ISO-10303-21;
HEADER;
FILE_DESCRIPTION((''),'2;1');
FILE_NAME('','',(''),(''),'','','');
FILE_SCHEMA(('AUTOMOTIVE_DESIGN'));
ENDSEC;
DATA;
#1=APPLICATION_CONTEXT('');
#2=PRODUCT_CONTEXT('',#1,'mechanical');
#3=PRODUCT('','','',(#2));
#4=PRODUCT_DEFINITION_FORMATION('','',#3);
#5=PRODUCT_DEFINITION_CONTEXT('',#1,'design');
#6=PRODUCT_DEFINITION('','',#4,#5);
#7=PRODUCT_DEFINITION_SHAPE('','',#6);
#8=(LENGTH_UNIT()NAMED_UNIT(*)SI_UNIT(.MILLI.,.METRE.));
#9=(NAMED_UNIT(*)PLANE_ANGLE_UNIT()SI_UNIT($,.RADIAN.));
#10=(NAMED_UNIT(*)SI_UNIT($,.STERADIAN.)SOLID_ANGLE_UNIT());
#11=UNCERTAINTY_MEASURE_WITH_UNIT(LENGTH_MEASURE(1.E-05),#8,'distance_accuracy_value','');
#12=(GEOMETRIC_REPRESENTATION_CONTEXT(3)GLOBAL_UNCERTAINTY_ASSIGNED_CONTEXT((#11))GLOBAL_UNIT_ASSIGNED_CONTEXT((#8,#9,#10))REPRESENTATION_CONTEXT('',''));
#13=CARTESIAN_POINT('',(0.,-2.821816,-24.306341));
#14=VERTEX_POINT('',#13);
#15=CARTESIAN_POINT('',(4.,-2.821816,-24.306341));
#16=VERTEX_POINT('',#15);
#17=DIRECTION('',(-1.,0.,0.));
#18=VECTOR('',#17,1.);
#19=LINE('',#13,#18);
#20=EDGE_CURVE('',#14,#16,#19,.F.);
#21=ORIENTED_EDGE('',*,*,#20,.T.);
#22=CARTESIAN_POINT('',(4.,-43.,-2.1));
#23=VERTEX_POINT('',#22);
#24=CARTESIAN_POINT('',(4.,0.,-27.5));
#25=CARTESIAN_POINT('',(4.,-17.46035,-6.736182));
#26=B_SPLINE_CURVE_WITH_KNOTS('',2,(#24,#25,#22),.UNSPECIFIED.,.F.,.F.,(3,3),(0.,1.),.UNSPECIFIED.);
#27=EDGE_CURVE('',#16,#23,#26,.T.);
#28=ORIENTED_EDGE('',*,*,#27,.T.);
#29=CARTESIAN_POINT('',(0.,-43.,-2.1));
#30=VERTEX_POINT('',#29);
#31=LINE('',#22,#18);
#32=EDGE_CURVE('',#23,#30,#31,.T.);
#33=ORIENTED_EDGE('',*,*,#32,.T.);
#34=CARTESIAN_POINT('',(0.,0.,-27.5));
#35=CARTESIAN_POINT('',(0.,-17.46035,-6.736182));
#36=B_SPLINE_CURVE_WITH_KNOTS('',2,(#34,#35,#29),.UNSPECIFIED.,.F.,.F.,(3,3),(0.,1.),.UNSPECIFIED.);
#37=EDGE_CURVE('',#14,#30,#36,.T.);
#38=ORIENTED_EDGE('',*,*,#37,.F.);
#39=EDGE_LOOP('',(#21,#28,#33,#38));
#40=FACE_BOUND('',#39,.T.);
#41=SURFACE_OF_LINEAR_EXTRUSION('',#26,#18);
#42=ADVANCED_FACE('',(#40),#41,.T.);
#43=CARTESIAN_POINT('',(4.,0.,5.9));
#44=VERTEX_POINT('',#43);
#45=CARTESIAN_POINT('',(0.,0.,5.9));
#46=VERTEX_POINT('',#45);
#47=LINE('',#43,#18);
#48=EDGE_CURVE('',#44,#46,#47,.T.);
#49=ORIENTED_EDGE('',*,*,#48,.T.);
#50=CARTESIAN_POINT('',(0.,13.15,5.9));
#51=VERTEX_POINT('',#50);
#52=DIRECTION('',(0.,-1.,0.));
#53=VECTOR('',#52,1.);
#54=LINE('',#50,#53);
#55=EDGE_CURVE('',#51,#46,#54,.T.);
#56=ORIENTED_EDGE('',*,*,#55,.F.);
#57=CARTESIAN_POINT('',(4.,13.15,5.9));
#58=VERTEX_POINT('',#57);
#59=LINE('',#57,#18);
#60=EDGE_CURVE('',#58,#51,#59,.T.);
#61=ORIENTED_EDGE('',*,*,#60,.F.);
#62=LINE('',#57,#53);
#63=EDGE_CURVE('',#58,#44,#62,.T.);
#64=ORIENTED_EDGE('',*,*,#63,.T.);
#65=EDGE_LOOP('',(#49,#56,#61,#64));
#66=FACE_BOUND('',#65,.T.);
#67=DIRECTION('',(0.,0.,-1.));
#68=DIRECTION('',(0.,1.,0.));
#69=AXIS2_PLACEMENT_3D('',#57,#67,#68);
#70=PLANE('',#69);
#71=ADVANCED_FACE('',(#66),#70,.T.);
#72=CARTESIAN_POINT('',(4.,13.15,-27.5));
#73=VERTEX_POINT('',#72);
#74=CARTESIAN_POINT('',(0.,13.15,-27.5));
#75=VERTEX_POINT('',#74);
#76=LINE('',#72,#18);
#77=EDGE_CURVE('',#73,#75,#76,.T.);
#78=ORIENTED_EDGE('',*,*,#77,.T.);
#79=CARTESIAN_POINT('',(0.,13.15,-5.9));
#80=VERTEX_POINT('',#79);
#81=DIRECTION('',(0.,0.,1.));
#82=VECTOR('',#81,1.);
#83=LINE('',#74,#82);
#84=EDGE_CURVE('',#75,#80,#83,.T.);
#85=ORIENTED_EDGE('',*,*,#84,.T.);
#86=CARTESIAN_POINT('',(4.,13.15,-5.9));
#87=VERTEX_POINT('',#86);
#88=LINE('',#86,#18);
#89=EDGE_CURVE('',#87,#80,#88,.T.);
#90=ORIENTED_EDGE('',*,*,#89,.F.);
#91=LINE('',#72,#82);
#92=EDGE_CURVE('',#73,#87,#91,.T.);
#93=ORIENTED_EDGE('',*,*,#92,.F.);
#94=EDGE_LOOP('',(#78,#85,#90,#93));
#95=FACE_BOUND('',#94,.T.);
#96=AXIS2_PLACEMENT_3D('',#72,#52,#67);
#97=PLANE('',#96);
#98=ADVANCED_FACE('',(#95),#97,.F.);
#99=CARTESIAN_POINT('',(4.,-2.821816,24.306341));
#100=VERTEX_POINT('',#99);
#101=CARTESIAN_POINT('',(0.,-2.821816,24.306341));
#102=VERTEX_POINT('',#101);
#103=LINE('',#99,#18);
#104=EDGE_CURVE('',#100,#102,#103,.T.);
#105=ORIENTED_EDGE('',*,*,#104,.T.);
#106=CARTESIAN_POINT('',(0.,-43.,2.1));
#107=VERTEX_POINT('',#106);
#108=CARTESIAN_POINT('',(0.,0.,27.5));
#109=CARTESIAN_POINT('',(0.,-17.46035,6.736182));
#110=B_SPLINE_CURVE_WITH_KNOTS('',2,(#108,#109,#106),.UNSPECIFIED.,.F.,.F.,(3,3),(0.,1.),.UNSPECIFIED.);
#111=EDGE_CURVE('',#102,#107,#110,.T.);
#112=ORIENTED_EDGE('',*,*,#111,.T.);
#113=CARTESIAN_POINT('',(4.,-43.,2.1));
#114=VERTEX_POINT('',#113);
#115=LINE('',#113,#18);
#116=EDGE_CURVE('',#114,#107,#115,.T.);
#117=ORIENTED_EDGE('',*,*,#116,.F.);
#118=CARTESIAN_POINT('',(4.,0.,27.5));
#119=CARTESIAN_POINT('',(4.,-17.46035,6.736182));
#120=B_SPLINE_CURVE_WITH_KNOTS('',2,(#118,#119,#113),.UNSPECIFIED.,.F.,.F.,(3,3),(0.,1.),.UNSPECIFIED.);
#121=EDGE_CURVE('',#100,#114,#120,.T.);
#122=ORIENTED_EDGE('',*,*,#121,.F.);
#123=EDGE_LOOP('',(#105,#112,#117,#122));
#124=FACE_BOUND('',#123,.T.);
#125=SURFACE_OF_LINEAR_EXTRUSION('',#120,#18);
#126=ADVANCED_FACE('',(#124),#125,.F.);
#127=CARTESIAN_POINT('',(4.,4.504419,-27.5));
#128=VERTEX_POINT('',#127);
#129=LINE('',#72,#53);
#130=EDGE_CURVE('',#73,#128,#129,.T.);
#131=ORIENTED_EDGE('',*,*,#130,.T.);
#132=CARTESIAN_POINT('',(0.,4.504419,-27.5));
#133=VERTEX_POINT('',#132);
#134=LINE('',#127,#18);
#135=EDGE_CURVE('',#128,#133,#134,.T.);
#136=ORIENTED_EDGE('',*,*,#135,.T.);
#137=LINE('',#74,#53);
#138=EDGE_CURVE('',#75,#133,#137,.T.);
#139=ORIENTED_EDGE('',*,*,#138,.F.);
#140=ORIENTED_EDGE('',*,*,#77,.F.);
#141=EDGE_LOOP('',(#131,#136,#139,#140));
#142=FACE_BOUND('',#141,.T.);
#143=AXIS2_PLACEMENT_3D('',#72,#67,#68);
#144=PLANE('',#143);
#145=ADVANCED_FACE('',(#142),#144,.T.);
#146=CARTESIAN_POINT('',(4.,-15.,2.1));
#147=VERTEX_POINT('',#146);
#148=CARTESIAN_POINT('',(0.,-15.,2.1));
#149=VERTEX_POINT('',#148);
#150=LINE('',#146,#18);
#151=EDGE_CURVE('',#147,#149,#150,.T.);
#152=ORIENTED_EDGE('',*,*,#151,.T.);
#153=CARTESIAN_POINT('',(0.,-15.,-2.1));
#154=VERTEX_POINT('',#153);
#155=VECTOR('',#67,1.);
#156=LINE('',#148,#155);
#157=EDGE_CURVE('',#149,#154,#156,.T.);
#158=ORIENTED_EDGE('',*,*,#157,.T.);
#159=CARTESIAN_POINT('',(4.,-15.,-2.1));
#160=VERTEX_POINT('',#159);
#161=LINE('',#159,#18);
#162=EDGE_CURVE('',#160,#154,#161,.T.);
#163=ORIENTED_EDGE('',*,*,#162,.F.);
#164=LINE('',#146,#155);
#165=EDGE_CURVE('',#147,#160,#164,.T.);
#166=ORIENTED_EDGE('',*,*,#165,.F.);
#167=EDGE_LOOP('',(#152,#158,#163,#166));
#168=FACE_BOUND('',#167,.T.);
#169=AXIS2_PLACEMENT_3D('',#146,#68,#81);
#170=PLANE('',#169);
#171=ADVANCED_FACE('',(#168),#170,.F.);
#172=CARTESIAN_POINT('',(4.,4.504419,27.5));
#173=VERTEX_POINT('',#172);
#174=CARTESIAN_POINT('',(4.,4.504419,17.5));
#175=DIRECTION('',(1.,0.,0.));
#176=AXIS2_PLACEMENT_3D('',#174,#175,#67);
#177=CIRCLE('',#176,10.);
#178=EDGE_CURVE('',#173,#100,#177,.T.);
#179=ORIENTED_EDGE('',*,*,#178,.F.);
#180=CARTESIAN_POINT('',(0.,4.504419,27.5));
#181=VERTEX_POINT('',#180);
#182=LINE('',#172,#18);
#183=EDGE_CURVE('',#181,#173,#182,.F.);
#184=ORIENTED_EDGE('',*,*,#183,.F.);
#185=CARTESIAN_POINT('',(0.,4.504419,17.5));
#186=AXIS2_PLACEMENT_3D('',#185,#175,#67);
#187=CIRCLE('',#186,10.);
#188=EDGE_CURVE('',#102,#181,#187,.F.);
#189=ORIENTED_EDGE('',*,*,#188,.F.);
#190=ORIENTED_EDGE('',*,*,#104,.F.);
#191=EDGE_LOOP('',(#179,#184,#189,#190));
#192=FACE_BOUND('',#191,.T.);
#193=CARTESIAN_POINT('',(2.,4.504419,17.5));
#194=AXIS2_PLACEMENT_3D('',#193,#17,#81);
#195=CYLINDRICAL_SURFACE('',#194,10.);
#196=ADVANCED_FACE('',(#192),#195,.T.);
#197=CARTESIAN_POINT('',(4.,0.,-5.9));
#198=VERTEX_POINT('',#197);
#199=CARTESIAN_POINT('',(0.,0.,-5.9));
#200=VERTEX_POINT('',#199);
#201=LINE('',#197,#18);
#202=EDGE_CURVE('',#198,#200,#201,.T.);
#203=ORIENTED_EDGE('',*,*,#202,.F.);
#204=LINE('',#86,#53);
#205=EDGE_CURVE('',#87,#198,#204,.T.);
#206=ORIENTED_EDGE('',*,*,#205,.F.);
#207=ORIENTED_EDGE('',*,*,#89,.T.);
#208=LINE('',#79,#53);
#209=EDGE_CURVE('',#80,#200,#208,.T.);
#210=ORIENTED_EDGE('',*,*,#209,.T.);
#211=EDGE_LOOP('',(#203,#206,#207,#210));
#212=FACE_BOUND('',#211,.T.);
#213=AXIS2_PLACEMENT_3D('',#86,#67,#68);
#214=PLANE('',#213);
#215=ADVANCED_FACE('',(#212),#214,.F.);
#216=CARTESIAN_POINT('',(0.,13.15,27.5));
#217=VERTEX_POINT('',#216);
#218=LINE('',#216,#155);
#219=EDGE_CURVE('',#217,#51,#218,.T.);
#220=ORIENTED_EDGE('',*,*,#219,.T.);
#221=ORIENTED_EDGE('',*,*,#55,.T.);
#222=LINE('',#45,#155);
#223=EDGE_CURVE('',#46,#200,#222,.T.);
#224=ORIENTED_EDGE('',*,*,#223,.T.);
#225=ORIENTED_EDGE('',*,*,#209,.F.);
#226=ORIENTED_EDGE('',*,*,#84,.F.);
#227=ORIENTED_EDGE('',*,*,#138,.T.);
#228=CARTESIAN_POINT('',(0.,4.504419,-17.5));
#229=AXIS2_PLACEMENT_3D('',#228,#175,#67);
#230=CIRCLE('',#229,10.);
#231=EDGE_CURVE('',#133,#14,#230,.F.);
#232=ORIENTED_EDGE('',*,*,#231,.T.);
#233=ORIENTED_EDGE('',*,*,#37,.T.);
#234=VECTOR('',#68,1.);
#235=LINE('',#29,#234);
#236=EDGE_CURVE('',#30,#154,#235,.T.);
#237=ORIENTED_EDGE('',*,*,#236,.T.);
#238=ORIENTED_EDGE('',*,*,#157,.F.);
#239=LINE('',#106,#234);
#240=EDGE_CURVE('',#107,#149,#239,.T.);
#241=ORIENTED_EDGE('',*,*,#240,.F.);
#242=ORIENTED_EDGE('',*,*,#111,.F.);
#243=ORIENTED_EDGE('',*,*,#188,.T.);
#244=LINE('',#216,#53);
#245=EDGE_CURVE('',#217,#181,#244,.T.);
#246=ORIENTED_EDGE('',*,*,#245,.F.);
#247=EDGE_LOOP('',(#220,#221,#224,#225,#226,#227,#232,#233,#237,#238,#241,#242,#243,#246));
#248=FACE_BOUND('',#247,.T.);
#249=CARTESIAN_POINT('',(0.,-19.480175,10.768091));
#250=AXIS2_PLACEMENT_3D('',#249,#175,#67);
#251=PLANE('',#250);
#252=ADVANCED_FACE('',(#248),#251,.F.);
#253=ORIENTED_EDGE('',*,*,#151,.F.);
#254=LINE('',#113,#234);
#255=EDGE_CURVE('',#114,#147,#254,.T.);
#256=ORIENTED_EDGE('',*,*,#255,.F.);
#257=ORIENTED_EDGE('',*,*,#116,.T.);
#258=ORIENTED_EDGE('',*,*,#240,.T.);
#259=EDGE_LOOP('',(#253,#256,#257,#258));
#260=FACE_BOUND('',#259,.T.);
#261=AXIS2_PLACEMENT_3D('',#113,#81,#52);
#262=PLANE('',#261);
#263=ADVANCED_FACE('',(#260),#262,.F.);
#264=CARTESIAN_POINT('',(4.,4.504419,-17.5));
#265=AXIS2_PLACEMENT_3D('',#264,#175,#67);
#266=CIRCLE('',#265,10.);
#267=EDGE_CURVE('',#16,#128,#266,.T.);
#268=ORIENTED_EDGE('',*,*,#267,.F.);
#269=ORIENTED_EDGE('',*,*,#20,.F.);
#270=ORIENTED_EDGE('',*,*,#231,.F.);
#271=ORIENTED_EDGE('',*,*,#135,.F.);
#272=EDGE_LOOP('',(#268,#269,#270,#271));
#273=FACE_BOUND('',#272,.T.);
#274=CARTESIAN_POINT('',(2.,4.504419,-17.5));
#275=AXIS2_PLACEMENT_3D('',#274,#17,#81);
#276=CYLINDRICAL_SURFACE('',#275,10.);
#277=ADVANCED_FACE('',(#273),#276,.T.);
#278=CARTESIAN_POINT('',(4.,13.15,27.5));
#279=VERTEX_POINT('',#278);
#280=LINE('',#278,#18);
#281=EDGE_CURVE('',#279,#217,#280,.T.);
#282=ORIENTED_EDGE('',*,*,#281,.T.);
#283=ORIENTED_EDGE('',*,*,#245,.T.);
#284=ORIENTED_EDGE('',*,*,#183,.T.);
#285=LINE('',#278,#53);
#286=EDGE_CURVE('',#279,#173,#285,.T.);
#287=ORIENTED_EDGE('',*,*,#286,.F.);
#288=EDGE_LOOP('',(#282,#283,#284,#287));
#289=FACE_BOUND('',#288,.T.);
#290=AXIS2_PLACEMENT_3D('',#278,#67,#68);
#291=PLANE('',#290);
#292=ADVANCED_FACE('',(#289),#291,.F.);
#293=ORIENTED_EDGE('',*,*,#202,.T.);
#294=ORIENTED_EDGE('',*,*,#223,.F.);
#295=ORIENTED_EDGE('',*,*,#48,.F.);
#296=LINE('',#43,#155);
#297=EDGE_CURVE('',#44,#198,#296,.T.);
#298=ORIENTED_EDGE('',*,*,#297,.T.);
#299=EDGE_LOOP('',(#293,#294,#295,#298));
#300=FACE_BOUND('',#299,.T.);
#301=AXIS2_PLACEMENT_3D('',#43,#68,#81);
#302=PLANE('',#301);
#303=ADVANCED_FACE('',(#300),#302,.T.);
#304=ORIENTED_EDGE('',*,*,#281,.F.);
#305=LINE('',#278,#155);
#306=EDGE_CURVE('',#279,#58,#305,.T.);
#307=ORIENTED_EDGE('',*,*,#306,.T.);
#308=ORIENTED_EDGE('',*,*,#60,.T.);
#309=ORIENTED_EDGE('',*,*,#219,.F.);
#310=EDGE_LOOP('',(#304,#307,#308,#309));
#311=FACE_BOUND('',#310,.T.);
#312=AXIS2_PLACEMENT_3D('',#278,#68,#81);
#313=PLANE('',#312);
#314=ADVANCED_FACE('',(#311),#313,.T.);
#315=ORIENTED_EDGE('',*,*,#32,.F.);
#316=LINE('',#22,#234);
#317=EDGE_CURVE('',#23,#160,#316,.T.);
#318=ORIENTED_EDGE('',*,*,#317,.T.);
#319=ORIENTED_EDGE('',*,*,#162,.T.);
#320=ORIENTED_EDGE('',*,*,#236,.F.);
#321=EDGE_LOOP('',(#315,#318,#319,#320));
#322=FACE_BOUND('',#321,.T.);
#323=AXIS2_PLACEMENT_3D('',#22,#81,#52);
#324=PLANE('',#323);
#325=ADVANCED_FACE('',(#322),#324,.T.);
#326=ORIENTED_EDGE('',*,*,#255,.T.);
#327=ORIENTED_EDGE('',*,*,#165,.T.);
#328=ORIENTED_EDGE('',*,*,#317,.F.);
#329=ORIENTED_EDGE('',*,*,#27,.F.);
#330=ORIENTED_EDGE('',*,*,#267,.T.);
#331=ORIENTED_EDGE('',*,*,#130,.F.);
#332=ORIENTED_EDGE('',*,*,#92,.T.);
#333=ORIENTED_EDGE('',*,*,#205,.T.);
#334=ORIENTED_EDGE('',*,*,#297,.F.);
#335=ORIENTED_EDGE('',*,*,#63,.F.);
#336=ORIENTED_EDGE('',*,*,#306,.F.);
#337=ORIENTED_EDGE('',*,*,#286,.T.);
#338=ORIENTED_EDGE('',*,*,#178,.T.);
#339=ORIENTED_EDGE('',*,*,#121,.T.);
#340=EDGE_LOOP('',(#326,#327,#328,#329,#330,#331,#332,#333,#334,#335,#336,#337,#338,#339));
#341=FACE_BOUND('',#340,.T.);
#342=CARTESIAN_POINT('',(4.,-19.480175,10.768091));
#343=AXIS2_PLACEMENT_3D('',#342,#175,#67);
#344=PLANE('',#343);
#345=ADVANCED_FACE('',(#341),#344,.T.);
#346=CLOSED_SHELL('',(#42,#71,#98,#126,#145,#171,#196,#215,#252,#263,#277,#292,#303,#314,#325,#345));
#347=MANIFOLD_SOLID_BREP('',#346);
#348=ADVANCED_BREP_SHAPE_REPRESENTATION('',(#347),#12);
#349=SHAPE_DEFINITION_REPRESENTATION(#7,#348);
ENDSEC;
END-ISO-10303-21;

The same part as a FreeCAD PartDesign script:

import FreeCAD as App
import Part
import Sketcher

V = App.Vector


def edges_at(feature, points):
    """Names of the edges that pass closest to the given points."""
    edges = feature.Shape.Edges
    near = lambda p: min(range(len(edges)), key=lambda i: edges[i].distToShape(Part.Vertex(*p))[0])
    return sorted({f"Edge{near(p) + 1}" for p in points})

doc = App.newDocument("Part")
body = doc.addObject("PartDesign::Body", "Body")

# Sketch on YZ plane
sketch1 = doc.addObject("Sketcher::SketchObject", "Sketch")
body.addObject(sketch1)
sketch1.AttachmentSupport = (doc.YZ_Plane, [""])
sketch1.MapMode = "FlatFace"
sketch1.addGeometry([
    Part.LineSegment(V(13.15, 27.5, 0), V(0, 27.5, 0)),  # 0
    Part.BSplineCurve([V(0, 27.5, 0), V(-17.46035, 6.736182, 0), V(-43, 2.1, 0)], [3, 3], [0, 1], False, 2, [1, 1, 1], False),  # 1
    Part.LineSegment(V(-43, 2.1, 0), V(-15, 2.1, 0)),  # 2
    Part.LineSegment(V(-15, 2.1, 0), V(-15, -2.1, 0)),  # 3
    Part.LineSegment(V(-15, -2.1, 0), V(-43, -2.1, 0)),  # 4
    Part.BSplineCurve([V(0, -27.5, 0), V(-17.46035, -6.736182, 0), V(-43, -2.1, 0)], [3, 3], [0, 1], False, 2, [1, 1, 1], False),  # 5
    Part.LineSegment(V(0, -27.5, 0), V(13.15, -27.5, 0)),  # 6
    Part.LineSegment(V(13.15, -27.5, 0), V(13.15, -5.9, 0)),  # 7
    Part.LineSegment(V(13.15, -5.9, 0), V(0, -5.9, 0)),  # 8
    Part.LineSegment(V(0, -5.9, 0), V(0, 5.9, 0)),  # 9
    Part.LineSegment(V(0, 5.9, 0), V(13.15, 5.9, 0)),  # 10
    Part.LineSegment(V(13.15, 5.9, 0), V(13.15, 27.5, 0)),  # 11
], False)
sketch1.addConstraint([
    Sketcher.Constraint("Block", 1),
    Sketcher.Constraint("Block", 5),
    Sketcher.Constraint("Coincident", 0, 2, 1, 1),
    Sketcher.Constraint("Coincident", 1, 2, 2, 1),
    Sketcher.Constraint("Coincident", 2, 2, 3, 1),
    Sketcher.Constraint("Coincident", 3, 2, 4, 1),
    Sketcher.Constraint("Coincident", 4, 2, 5, 2),
    Sketcher.Constraint("Coincident", 5, 1, 6, 1),
    Sketcher.Constraint("Coincident", 6, 2, 7, 1),
    Sketcher.Constraint("Coincident", 7, 2, 8, 1),
    Sketcher.Constraint("Coincident", 8, 2, 9, 1),
    Sketcher.Constraint("Coincident", 9, 2, 10, 1),
    Sketcher.Constraint("Coincident", 10, 2, 11, 1),
    Sketcher.Constraint("Coincident", 11, 2, 0, 1),
    Sketcher.Constraint("Horizontal", 0),
    Sketcher.Constraint("Horizontal", 2),
    Sketcher.Constraint("Vertical", 3),
    Sketcher.Constraint("Horizontal", 4),
    Sketcher.Constraint("Horizontal", 6),
    Sketcher.Constraint("Vertical", 7),
    Sketcher.Constraint("Horizontal", 8),
    Sketcher.Constraint("Vertical", 9),
    Sketcher.Constraint("Horizontal", 10),
    Sketcher.Constraint("Vertical", 11),
    Sketcher.Constraint("Symmetric", 8, 2, 9, 2, -1, 1),
    Sketcher.Constraint("Vertical", 7, 2, 10, 2),
    Sketcher.Constraint("DistanceX", 2, 1, 2, 2, 28.0),
    Sketcher.Constraint("DistanceY", 7, 1, 7, 2, 21.6),
    Sketcher.Constraint("DistanceX", 0, 2, 0, 1, 13.15),
])
pad1 = doc.addObject("PartDesign::Pad", "Pad")
body.addObject(pad1)
pad1.Profile = sketch1
pad1.Length = 4
doc.recompute()

fillet = doc.addObject("PartDesign::Fillet", "Fillet")
body.addObject(fillet)
fillet.Base = (pad1, edges_at(pad1, [(2, 0, -27.5), (2, 0, 27.5)]))
fillet.Radius = 10

doc.recompute()
